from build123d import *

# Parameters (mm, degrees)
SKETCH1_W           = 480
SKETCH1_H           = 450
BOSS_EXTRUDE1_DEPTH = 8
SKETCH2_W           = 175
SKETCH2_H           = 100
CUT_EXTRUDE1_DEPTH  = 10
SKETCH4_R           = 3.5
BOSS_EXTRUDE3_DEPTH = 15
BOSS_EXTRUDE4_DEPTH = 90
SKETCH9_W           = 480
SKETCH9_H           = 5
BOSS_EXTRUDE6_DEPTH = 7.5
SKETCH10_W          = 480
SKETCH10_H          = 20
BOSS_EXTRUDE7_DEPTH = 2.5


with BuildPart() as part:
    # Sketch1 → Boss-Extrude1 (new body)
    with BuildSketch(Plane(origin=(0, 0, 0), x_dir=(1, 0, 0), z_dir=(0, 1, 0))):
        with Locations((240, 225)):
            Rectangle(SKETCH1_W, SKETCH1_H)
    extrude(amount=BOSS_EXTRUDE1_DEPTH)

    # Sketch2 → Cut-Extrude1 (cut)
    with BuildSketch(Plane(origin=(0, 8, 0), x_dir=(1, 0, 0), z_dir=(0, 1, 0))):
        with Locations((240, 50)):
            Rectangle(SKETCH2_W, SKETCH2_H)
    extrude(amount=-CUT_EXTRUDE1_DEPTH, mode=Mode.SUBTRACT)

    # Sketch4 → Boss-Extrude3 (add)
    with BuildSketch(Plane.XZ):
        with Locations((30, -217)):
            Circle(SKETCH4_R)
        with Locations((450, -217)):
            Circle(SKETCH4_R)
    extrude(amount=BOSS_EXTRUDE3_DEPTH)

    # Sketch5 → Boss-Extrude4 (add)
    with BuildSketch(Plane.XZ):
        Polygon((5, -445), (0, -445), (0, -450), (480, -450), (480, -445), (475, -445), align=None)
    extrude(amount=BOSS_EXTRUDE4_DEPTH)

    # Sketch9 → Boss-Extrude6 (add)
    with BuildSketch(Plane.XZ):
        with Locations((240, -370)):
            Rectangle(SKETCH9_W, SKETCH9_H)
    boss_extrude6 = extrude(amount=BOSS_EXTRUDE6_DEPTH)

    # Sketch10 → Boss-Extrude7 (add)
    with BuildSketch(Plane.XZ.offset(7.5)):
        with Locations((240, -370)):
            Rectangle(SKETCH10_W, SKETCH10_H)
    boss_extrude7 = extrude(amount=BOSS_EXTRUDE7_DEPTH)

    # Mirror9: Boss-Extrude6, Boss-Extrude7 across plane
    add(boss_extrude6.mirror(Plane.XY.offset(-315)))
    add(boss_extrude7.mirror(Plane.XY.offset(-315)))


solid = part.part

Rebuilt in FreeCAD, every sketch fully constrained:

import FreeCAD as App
import Part
import Sketcher
from FreeCAD import Vector


def add_polygon(sketch, points):
    """Adds a closed chain of lines whose ends are joined by coincident constraints."""
    first, n = sketch.GeometryCount, len(points)
    for a, b in zip(points, points[1:] + points[:1]):
        sketch.addGeometry(Part.LineSegment(App.Vector(*a, 0), App.Vector(*b, 0)), False)
    for i in range(n):
        sketch.addConstraint(Sketcher.Constraint("Coincident", first + i, 2, first + (i + 1) % n, 1))

doc = App.newDocument("Part")
body = doc.addObject("PartDesign::Body", "Body")

sketch1 = body.newObject("Sketcher::SketchObject", "Sketch")
sketch1.AttachmentSupport = (doc.getObject("XZ_Plane"), [""])
sketch1.MapMode = "FlatFace"
add_polygon(sketch1, [(0, -450), (0, 0), (480, 0), (480, -450)])
sketch1.addConstraint(Sketcher.Constraint("Vertical", 0))
sketch1.addConstraint(Sketcher.Constraint("Horizontal", 1))
sketch1.addConstraint(Sketcher.Constraint("Vertical", 2))
sketch1.addConstraint(Sketcher.Constraint("Horizontal", 3))
sketch1.addConstraint(Sketcher.Constraint("Coincident", 0, 2, -1, 1))
sketch1.addConstraint(Sketcher.Constraint("DistanceX", 1, 1, 1, 2, 480.0))
sketch1.addConstraint(Sketcher.Constraint("DistanceY", 0, 1, 0, 2, 450.0))
pad1 = body.newObject("PartDesign::Pad", "Pad")
pad1.Profile = sketch1
pad1.Length = 8
pad1.Reversed = True

sketch2 = body.newObject("Sketcher::SketchObject", "Sketch001")
sketch2.AttachmentSupport = (doc.getObject("XZ_Plane"), [""])
sketch2.MapMode = "FlatFace"
sketch2.AttachmentOffset = App.Placement(Vector(0, 0, -8), App.Rotation())
add_polygon(sketch2, [(152, -100), (152, 0), (328, 0), (328, -100)])
sketch2.addConstraint(Sketcher.Constraint("Vertical", 0))
sketch2.addConstraint(Sketcher.Constraint("Horizontal", 1))
sketch2.addConstraint(Sketcher.Constraint("Vertical", 2))
sketch2.addConstraint(Sketcher.Constraint("Horizontal", 3))
sketch2.addConstraint(Sketcher.Constraint("PointOnObject", 0, 2, -1))
sketch2.addConstraint(Sketcher.Constraint("DistanceX", 1, 1, 1, 2, 175.0))
sketch2.addConstraint(Sketcher.Constraint("DistanceY", 0, 1, 0, 2, 100.0))
sketch2.addConstraint(Sketcher.Constraint("DistanceX", -1, 1, 0, 2, 152.5))
pocket1 = body.newObject("PartDesign::Pocket", "Pocket")
pocket1.Profile = sketch2
pocket1.Length = 10
pocket1.Reversed = True

sketch3 = body.newObject("Sketcher::SketchObject", "Sketch002")
sketch3.AttachmentSupport = (doc.getObject("XZ_Plane"), [""])
sketch3.MapMode = "FlatFace"
sketch3.addGeometry(Part.Circle(Vector(30, -217, 0), Vector(0, 0, 1), 3.5), False)
sketch3.addGeometry(Part.Circle(Vector(450, -217, 0), Vector(0, 0, 1), 3.5), False)
sketch3.addConstraint(Sketcher.Constraint("Equal", 0, 1))
sketch3.addConstraint(Sketcher.Constraint("Horizontal", 0, 3, 1, 3))
sketch3.addConstraint(Sketcher.Constraint("Diameter", 0, 7.0))
sketch3.addConstraint(Sketcher.Constraint("DistanceX", -1, 1, 0, 3, 30.0))
sketch3.addConstraint(Sketcher.Constraint("DistanceY", 0, 3, -1, 1, 217.0))
sketch3.addConstraint(Sketcher.Constraint("DistanceX", -1, 1, 1, 3, 450.0))
pad2 = body.newObject("PartDesign::Pad", "Pad001")
pad2.Profile = sketch3
pad2.Length = 15

sketch4 = body.newObject("Sketcher::SketchObject", "Sketch003")
sketch4.AttachmentSupport = (doc.getObject("XZ_Plane"), [""])
sketch4.MapMode = "FlatFace"
add_polygon(sketch4, [(0, -445), (0, -450), (480, -450), (480, -445)])
sketch4.addConstraint(Sketcher.Constraint("Vertical", 0))
sketch4.addConstraint(Sketcher.Constraint("Horizontal", 1))
sketch4.addConstraint(Sketcher.Constraint("Vertical", 2))
sketch4.addConstraint(Sketcher.Constraint("Horizontal", 3))
sketch4.addConstraint(Sketcher.Constraint("PointOnObject", 0, 2, -2))
sketch4.addConstraint(Sketcher.Constraint("DistanceX", 1, 1, 1, 2, 480.0))
sketch4.addConstraint(Sketcher.Constraint("DistanceY", 0, 2, 0, 1, 5.0))
sketch4.addConstraint(Sketcher.Constraint("DistanceY", 0, 2, -1, 1, 450.0))
pad3 = body.newObject("PartDesign::Pad", "Pad002")
pad3.Profile = sketch4
pad3.Length = 90

sketch5 = body.newObject("Sketcher::SketchObject", "Sketch004")
sketch5.AttachmentSupport = (doc.getObject("XZ_Plane"), [""])
sketch5.MapMode = "FlatFace"
add_polygon(sketch5, [(0, -368), (0, -372), (480, -372), (480, -368)])
sketch5.addConstraint(Sketcher.Constraint("Vertical", 0))
sketch5.addConstraint(Sketcher.Constraint("Horizontal", 1))
sketch5.addConstraint(Sketcher.Constraint("Vertical", 2))
sketch5.addConstraint(Sketcher.Constraint("Horizontal", 3))
sketch5.addConstraint(Sketcher.Constraint("PointOnObject", 0, 2, -2))
sketch5.addConstraint(Sketcher.Constraint("DistanceX", 1, 1, 1, 2, 480.0))
sketch5.addConstraint(Sketcher.Constraint("DistanceY", 0, 2, 0, 1, 5.0))
sketch5.addConstraint(Sketcher.Constraint("DistanceY", 0, 2, -1, 1, 372.5))
pad4 = body.newObject("PartDesign::Pad", "Pad003")
pad4.Profile = sketch5
pad4.Length = 7.5

sketch6 = body.newObject("Sketcher::SketchObject", "Sketch005")
sketch6.AttachmentSupport = (doc.getObject("XZ_Plane"), [""])
sketch6.MapMode = "FlatFace"
sketch6.AttachmentOffset = App.Placement(Vector(0, 0, 7.5), App.Rotation())
add_polygon(sketch6, [(0, -360), (0, -380), (480, -380), (480, -360)])
sketch6.addConstraint(Sketcher.Constraint("Vertical", 0))
sketch6.addConstraint(Sketcher.Constraint("Horizontal", 1))
sketch6.addConstraint(Sketcher.Constraint("Vertical", 2))
sketch6.addConstraint(Sketcher.Constraint("Horizontal", 3))
sketch6.addConstraint(Sketcher.Constraint("PointOnObject", 0, 2, -2))
sketch6.addConstraint(Sketcher.Constraint("DistanceX", 1, 1, 1, 2, 480.0))
sketch6.addConstraint(Sketcher.Constraint("DistanceY", 0, 2, 0, 1, 20.0))
sketch6.addConstraint(Sketcher.Constraint("DistanceY", 0, 2, -1, 1, 380.0))
pad5 = body.newObject("PartDesign::Pad", "Pad004")
pad5.Profile = sketch6
pad5.Length = 2.5
doc.recompute()

datumplane = body.newObject("PartDesign::Plane", "DatumPlane")
datumplane.AttachmentSupport = (doc.getObject("XY_Plane"), [""])
datumplane.MapMode = "FlatFace"
datumplane.AttachmentOffset = App.Placement(Vector(0, 0, -315), App.Rotation())
mirrored = body.newObject("PartDesign::Mirrored", "Mirrored")
mirrored.Originals = [pad4, pad5]
mirrored.MirrorPlane = (datumplane, [""])
body.Tip = mirrored

doc.recompute()
